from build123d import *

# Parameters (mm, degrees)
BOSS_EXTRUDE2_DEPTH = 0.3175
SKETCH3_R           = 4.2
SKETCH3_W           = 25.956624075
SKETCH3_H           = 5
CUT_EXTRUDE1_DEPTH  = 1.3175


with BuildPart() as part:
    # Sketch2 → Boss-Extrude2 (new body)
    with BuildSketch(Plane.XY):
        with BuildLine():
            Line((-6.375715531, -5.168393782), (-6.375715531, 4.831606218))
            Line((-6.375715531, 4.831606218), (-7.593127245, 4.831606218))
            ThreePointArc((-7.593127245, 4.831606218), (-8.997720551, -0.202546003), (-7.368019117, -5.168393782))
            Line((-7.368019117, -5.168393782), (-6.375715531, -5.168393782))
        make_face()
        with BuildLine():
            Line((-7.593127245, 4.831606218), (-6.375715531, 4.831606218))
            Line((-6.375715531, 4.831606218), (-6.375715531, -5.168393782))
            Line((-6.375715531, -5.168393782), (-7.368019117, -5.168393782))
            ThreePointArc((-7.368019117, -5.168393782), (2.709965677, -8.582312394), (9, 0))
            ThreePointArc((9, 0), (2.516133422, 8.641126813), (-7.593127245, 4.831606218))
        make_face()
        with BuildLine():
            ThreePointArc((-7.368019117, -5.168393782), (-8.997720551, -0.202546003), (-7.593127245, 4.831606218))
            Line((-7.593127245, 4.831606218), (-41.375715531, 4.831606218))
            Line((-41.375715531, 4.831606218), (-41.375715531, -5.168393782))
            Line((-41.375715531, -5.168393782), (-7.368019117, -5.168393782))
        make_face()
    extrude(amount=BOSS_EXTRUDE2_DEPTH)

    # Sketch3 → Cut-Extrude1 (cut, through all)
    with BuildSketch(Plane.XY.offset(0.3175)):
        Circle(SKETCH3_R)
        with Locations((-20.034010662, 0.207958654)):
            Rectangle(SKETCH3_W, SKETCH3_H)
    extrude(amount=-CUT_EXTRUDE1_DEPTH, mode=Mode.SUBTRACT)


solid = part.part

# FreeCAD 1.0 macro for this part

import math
import FreeCAD as App
import Part
import Sketcher

V = App.Vector
Q = App.Units.Quantity


def add_polygon(sketch, points):
    """Adds a closed chain of lines whose ends are joined by coincident constraints."""
    first, n = sketch.GeometryCount, len(points)
    for a, b in zip(points, points[1:] + points[:1]):
        sketch.addGeometry(Part.LineSegment(App.Vector(*a, 0), App.Vector(*b, 0)), False)
    for i in range(n):
        sketch.addConstraint(Sketcher.Constraint("Coincident", first + i, 2, first + (i + 1) % n, 1))

doc = App.newDocument("Part")
params = doc.addObject("Spreadsheet::Sheet", "Params")
for row, (alias, value) in enumerate([
    ("sketch1_radius", "9 mm"),
    ("sketch1_height", "10 mm"),
    ("pad1_length", "0.3175 mm"),
    ("sketch2_diameter", "8.4 mm"),
    ("sketch2_height", "5 mm"),
], start=1):
    params.set(f"A{row}", alias)
    params.set(f"B{row}", "=" + value)
    params.setAlias(f"B{row}", alias)

body = doc.addObject("PartDesign::Body", "Body")

sketch1 = body.newObject("Sketcher::SketchObject", "Sketch")
sketch1.AttachmentSupport = (doc.getObject("XY_Plane"), [""])
sketch1.MapMode = "FlatFace"
sketch1.addGeometry(Part.ArcOfCircle(Part.Circle(V(0, 0, 0), V(0, 0, 1), 9), math.radians(-145), math.radians(0)), False)
sketch1.addGeometry(Part.ArcOfCircle(Part.Circle(V(0, 0, 0), V(0, 0, 1), 9), math.radians(0), math.radians(148)), False)
sketch1.addGeometry(Part.LineSegment(V(-8, 5, 0), V(-41, 5, 0)), False)
sketch1.addGeometry(Part.LineSegment(V(-41, 5, 0), V(-41, -5, 0)), False)
sketch1.addGeometry(Part.LineSegment(V(-41, -5, 0), V(-7, -5, 0)), False)
sketch1.addConstraint(Sketcher.Constraint("Tangent", 0, 2, 1, 1))
sketch1.addConstraint(Sketcher.Constraint("Coincident", 1, 2, 2, 1))
sketch1.addConstraint(Sketcher.Constraint("Coincident", 2, 2, 3, 1))
sketch1.addConstraint(Sketcher.Constraint("Coincident", 3, 2, 4, 1))
sketch1.addConstraint(Sketcher.Constraint("Coincident", 4, 2, 0, 1))
sketch1.addConstraint(Sketcher.Constraint("Horizontal", 2))
sketch1.addConstraint(Sketcher.Constraint("Vertical", 3))
sketch1.addConstraint(Sketcher.Constraint("Horizontal", 4))
sketch1.addConstraint(Sketcher.Constraint("Coincident", 0, 3, -1, 1))
sketch1.addConstraint(Sketcher.Constraint("Equal", 0, 1))
sketch1.addConstraint(Sketcher.Constraint("PointOnObject", 0, 2, -1))
sketch1.addConstraint(Sketcher.Constraint("Radius", 0, Q("9 mm")))
sketch1.addConstraint(Sketcher.Constraint("DistanceY", 3, 2, 3, 1, Q("10 mm")))
sketch1.addConstraint(Sketcher.Constraint("DistanceX", 2, 2, 2, 1, Q("33.782588 mm")))
sketch1.addConstraint(Sketcher.Constraint("DistanceX", 4, 1, 4, 2, Q("34.007696 mm")))
sketch1.setExpression("Constraints[11]", "Params.sketch1_radius")
sketch1.setExpression("Constraints[12]", "Params.sketch1_height")
pad1 = body.newObject("PartDesign::Pad", "Pad")
pad1.Profile = sketch1
pad1.setExpression("Length", "Params.pad1_length")

sketch2 = body.newObject("Sketcher::SketchObject", "Sketch001")
sketch2.AttachmentSupport = (doc.getObject("XY_Plane"), [""])
sketch2.MapMode = "FlatFace"
sketch2.AttachmentOffset = App.Placement(V(0, 0, 0.3175), App.Rotation())
sketch2.addGeometry(Part.Circle(V(0, 0, 0), V(0, 0, 1), 4.2), False)
add_polygon(sketch2, [(-33, 2.7), (-33, -2.3), (-7.1, -2.3), (-7.1, 2.7)])
sketch2.addConstraint(Sketcher.Constraint("Vertical", 1))
sketch2.addConstraint(Sketcher.Constraint("Horizontal", 2))
sketch2.addConstraint(Sketcher.Constraint("Vertical", 3))
sketch2.addConstraint(Sketcher.Constraint("Horizontal", 4))
sketch2.addConstraint(Sketcher.Constraint("Coincident", 0, 3, -1, 1))
sketch2.addConstraint(Sketcher.Constraint("Diameter", 0, Q("8.4 mm")))
sketch2.addConstraint(Sketcher.Constraint("DistanceY", 1, 2, 1, 1, Q("5 mm")))
sketch2.addConstraint(Sketcher.Constraint("DistanceX", 2, 2, -1, 1, Q("7.055699 mm")))
sketch2.addConstraint(Sketcher.Constraint("DistanceX", 2, 1, 2, 2, Q("25.956624 mm")))
sketch2.addConstraint(Sketcher.Constraint("DistanceY", 1, 2, -1, 1, Q("2.292041 mm")))
sketch2.setExpression("Constraints[9]", "Params.sketch2_diameter")
sketch2.setExpression("Constraints[10]", "Params.sketch2_height")
pocket1 = body.newObject("PartDesign::Pocket", "Pocket")
pocket1.Profile = sketch2
pocket1.Type = "ThroughAll"

doc.recompute()
